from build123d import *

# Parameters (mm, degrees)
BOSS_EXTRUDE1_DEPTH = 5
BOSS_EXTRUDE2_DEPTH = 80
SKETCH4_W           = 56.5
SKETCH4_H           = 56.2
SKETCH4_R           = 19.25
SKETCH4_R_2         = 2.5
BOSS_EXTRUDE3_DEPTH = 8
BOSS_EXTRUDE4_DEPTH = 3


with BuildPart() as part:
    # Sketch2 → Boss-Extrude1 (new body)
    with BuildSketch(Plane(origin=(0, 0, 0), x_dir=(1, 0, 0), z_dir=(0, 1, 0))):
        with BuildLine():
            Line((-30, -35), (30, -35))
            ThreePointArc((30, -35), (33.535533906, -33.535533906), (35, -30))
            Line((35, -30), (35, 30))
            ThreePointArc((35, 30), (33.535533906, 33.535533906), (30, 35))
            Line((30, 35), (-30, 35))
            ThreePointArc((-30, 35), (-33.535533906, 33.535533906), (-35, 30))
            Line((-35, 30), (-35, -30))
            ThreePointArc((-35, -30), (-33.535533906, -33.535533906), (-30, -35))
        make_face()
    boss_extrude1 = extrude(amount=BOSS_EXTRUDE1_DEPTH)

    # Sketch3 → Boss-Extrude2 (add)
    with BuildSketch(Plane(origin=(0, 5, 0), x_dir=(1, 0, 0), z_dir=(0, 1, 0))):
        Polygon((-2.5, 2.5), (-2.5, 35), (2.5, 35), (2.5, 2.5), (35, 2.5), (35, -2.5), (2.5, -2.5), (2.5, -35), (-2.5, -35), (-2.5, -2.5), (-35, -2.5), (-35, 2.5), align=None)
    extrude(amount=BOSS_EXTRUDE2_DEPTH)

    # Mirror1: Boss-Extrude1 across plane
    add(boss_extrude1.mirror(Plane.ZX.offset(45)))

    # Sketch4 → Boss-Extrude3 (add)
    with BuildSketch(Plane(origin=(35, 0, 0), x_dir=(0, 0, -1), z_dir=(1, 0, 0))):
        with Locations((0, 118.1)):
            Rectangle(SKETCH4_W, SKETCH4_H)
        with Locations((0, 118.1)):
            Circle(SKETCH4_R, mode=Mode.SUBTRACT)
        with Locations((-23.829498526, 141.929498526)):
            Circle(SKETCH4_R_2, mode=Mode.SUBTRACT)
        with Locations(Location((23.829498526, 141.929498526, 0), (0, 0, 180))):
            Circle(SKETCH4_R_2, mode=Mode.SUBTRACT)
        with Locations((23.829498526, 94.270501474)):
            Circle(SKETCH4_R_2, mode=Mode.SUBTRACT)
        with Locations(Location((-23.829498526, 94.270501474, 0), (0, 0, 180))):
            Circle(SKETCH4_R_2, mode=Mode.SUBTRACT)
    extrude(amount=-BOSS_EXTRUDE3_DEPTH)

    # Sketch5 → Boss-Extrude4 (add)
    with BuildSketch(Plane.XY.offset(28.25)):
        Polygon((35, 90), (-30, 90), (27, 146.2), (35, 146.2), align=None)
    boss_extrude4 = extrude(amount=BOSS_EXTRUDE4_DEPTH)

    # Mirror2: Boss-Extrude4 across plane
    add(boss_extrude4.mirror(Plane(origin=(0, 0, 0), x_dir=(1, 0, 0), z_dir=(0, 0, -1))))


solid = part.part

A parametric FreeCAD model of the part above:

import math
import FreeCAD as App
import Part
import Sketcher

V = App.Vector

doc = App.newDocument("Part")
body = doc.addObject("PartDesign::Body", "Body")

# Sketch on XZ plane
sketch1 = doc.addObject("Sketcher::SketchObject", "Sketch")
body.addObject(sketch1)
sketch1.AttachmentSupport = (doc.XZ_Plane, [""])
sketch1.MapMode = "FlatFace"
sketch1.addGeometry(Part.LineSegment(V(-30, 35, 0), V(30, 35, 0)), False)
sketch1.addGeometry(Part.ArcOfCircle(Part.Circle(V(30, 30, 0), V(0, 0, 1), 5), math.radians(0), math.radians(90)), False)
sketch1.addGeometry(Part.LineSegment(V(35, 30, 0), V(35, -30, 0)), False)
sketch1.addGeometry(Part.ArcOfCircle(Part.Circle(V(30, -30, 0), V(0, 0, 1), 5), math.radians(-90), math.radians(0)), False)
sketch1.addGeometry(Part.LineSegment(V(30, -35, 0), V(-30, -35, 0)), False)
sketch1.addGeometry(Part.ArcOfCircle(Part.Circle(V(-30, -30, 0), V(0, 0, 1), 5), math.radians(180), math.radians(270)), False)
sketch1.addGeometry(Part.LineSegment(V(-35, -30, 0), V(-35, 30, 0)), False)
sketch1.addGeometry(Part.ArcOfCircle(Part.Circle(V(-30, 30, 0), V(0, 0, 1), 5), math.radians(90), math.radians(180)), False)
sketch1.addConstraint(Sketcher.Constraint("Tangent", 0, 2, 1, 2))
sketch1.addConstraint(Sketcher.Constraint("Tangent", 1, 1, 2, 1))
sketch1.addConstraint(Sketcher.Constraint("Tangent", 2, 2, 3, 2))
sketch1.addConstraint(Sketcher.Constraint("Tangent", 3, 1, 4, 1))
sketch1.addConstraint(Sketcher.Constraint("Tangent", 4, 2, 5, 2))
sketch1.addConstraint(Sketcher.Constraint("Tangent", 5, 1, 6, 1))
sketch1.addConstraint(Sketcher.Constraint("Tangent", 6, 2, 7, 2))
sketch1.addConstraint(Sketcher.Constraint("Tangent", 7, 1, 0, 1))
sketch1.addConstraint(Sketcher.Constraint("Horizontal", 0))
sketch1.addConstraint(Sketcher.Constraint("Vertical", 2))
sketch1.addConstraint(Sketcher.Constraint("Horizontal", 4))
sketch1.addConstraint(Sketcher.Constraint("Vertical", 6))
sketch1.addConstraint(Sketcher.Constraint("Equal", 1, 3))
sketch1.addConstraint(Sketcher.Constraint("Equal", 3, 5))
sketch1.addConstraint(Sketcher.Constraint("Equal", 5, 7))
sketch1.addConstraint(Sketcher.Constraint("Symmetric", 1, 3, 5, 3, -1, 1))
sketch1.addConstraint(Sketcher.Constraint("Equal", 4, 2))
sketch1.addConstraint(Sketcher.Constraint("Radius", 1, 5.0))
sketch1.addConstraint(Sketcher.Constraint("DistanceX", 0, 1, 0, 2, 60.0))
pad1 = doc.addObject("PartDesign::Pad", "Pad")
body.addObject(pad1)
pad1.Profile = sketch1
pad1.Length = 5
pad1.Reversed = True

# Sketch on XZ plane
sketch2 = doc.addObject("Sketcher::SketchObject", "Sketch001")
body.addObject(sketch2)
sketch2.AttachmentSupport = (doc.XZ_Plane, [""])
sketch2.MapMode = "FlatFace"
sketch2.AttachmentOffset = App.Placement(V(0, 0, -5), App.Rotation())
sketch2.addGeometry(Part.LineSegment(V(-2, -35, 0), V(-2, -2, 0)), False)
sketch2.addGeometry(Part.LineSegment(V(-2, -2, 0), V(-35, -2, 0)), False)
sketch2.addGeometry(Part.LineSegment(V(-35, -2, 0), V(-35, 2, 0)), False)
sketch2.addGeometry(Part.LineSegment(V(-35, 2, 0), V(-2, 2, 0)), False)
sketch2.addGeometry(Part.LineSegment(V(-2, 2, 0), V(-2, 35, 0)), False)
sketch2.addGeometry(Part.LineSegment(V(-2, 35, 0), V(2, 35, 0)), False)
sketch2.addGeometry(Part.LineSegment(V(2, 35, 0), V(2, 2, 0)), False)
sketch2.addGeometry(Part.LineSegment(V(2, 2, 0), V(35, 2, 0)), False)
sketch2.addGeometry(Part.LineSegment(V(35, 2, 0), V(35, -2, 0)), False)
sketch2.addGeometry(Part.LineSegment(V(35, -2, 0), V(2, -2, 0)), False)
sketch2.addGeometry(Part.LineSegment(V(2, -2, 0), V(2, -35, 0)), False)
sketch2.addGeometry(Part.LineSegment(V(2, -35, 0), V(-2, -35, 0)), False)
sketch2.addConstraint(Sketcher.Constraint("Coincident", 0, 2, 1, 1))
sketch2.addConstraint(Sketcher.Constraint("Coincident", 1, 2, 2, 1))
sketch2.addConstraint(Sketcher.Constraint("Coincident", 2, 2, 3, 1))
sketch2.addConstraint(Sketcher.Constraint("Coincident", 3, 2, 4, 1))
sketch2.addConstraint(Sketcher.Constraint("Coincident", 4, 2, 5, 1))
sketch2.addConstraint(Sketcher.Constraint("Coincident", 5, 2, 6, 1))
sketch2.addConstraint(Sketcher.Constraint("Coincident", 6, 2, 7, 1))
sketch2.addConstraint(Sketcher.Constraint("Coincident", 7, 2, 8, 1))
sketch2.addConstraint(Sketcher.Constraint("Coincident", 8, 2, 9, 1))
sketch2.addConstraint(Sketcher.Constraint("Coincident", 9, 2, 10, 1))
sketch2.addConstraint(Sketcher.Constraint("Coincident", 10, 2, 11, 1))
sketch2.addConstraint(Sketcher.Constraint("Coincident", 11, 2, 0, 1))
sketch2.addConstraint(Sketcher.Constraint("Vertical", 0))
sketch2.addConstraint(Sketcher.Constraint("Horizontal", 1))
sketch2.addConstraint(Sketcher.Constraint("Vertical", 2))
sketch2.addConstraint(Sketcher.Constraint("Horizontal", 3))
sketch2.addConstraint(Sketcher.Constraint("Vertical", 4))
sketch2.addConstraint(Sketcher.Constraint("Horizontal", 5))
sketch2.addConstraint(Sketcher.Constraint("Vertical", 6))
sketch2.addConstraint(Sketcher.Constraint("Horizontal", 7))
sketch2.addConstraint(Sketcher.Constraint("Vertical", 8))
sketch2.addConstraint(Sketcher.Constraint("Horizontal", 9))
sketch2.addConstraint(Sketcher.Constraint("Vertical", 10))
sketch2.addConstraint(Sketcher.Constraint("Horizontal", 11))
sketch2.addConstraint(Sketcher.Constraint("Symmetric", 0, 2, 6, 2, -1, 1))
sketch2.addConstraint(Sketcher.Constraint("Symmetric", 2, 2, 8, 2, -1, 1))
sketch2.addConstraint(Sketcher.Constraint("Symmetric", 4, 2, 10, 2, -1, 1))
sketch2.addConstraint(Sketcher.Constraint("Symmetric", 3, 2, 6, 2, -2))
sketch2.addConstraint(Sketcher.Constraint("Equal", 9, 0))
sketch2.addConstraint(Sketcher.Constraint("Equal", 11, 2))
sketch2.addConstraint(Sketcher.Constraint("DistanceX", 5, 1, 5, 2, 5.0))
sketch2.addConstraint(Sketcher.Constraint("DistanceX", 1, 2, 1, 1, 32.5))
pad2 = doc.addObject("PartDesign::Pad", "Pad001")
body.addObject(pad2)
pad2.Profile = sketch2
pad2.Length = 80
pad2.Reversed = True
doc.recompute()

datumplane = doc.addObject("PartDesign::Plane", "DatumPlane")
body.addObject(datumplane)
datumplane.AttachmentSupport = (doc.XZ_Plane, [""])
datumplane.MapMode = "FlatFace"
datumplane.AttachmentOffset = App.Placement(V(0, 0, -45), App.Rotation())
mirrored = doc.addObject("PartDesign::Mirrored", "Mirrored")
body.addObject(mirrored)
mirrored.Originals = [pad1]
mirrored.MirrorPlane = (datumplane, [""])
body.Tip = mirrored

# Sketch on YZ plane
sketch3 = doc.addObject("Sketcher::SketchObject", "Sketch002")
body.addObject(sketch3)
sketch3.AttachmentSupport = (doc.YZ_Plane, [""])
sketch3.MapMode = "FlatFace"
sketch3.AttachmentOffset = App.Placement(V(0, 0, 35), App.Rotation())
sketch3.addGeometry(Part.LineSegment(V(146.2, 28.2, 0), V(90, 28.2, 0)), False)
sketch3.addGeometry(Part.LineSegment(V(90, 28.2, 0), V(90, -28.2, 0)), False)
sketch3.addGeometry(Part.LineSegment(V(90, -28.2, 0), V(146.2, -28.2, 0)), False)
sketch3.addGeometry(Part.LineSegment(V(146.2, -28.2, 0), V(146.2, 28.2, 0)), False)
sketch3.addGeometry(Part.Circle(V(94.3, 23.8, 0), V(0, 0, 1), 2.5), False)
sketch3.addGeometry(Part.Circle(V(94.3, -23.8, 0), V(0, 0, 1), 2.5), False)
sketch3.addGeometry(Part.Circle(V(118.1, 0, 0), V(0, 0, 1), 19.2), False)
sketch3.addGeometry(Part.Circle(V(141.9, 23.8, 0), V(0, 0, 1), 2.5), False)
sketch3.addGeometry(Part.Circle(V(141.9, -23.8, 0), V(0, 0, 1), 2.5), False)
sketch3.addConstraint(Sketcher.Constraint("Coincident", 0, 2, 1, 1))
sketch3.addConstraint(Sketcher.Constraint("Coincident", 1, 2, 2, 1))
sketch3.addConstraint(Sketcher.Constraint("Coincident", 2, 2, 3, 1))
sketch3.addConstraint(Sketcher.Constraint("Coincident", 3, 2, 0, 1))
sketch3.addConstraint(Sketcher.Constraint("Horizontal", 0))
sketch3.addConstraint(Sketcher.Constraint("Vertical", 1))
sketch3.addConstraint(Sketcher.Constraint("Horizontal", 2))
sketch3.addConstraint(Sketcher.Constraint("Vertical", 3))
sketch3.addConstraint(Sketcher.Constraint("Equal", 4, 5))
sketch3.addConstraint(Sketcher.Constraint("Equal", 5, 7))
sketch3.addConstraint(Sketcher.Constraint("Equal", 7, 8))
sketch3.addConstraint(Sketcher.Constraint("Symmetric", 4, 3, 5, 3, -1))
sketch3.addConstraint(Sketcher.Constraint("Symmetric", 7, 3, 8, 3, -1))
sketch3.addConstraint(Sketcher.Constraint("PointOnObject", 6, 3, -1))
sketch3.addConstraint(Sketcher.Constraint("Horizontal", 4, 3, 7, 3))
sketch3.addConstraint(Sketcher.Constraint("Diameter", 4, 5.0))
sketch3.addConstraint(Sketcher.Constraint("Diameter", 6, 38.5))
sketch3.addConstraint(Sketcher.Constraint("DistanceX", 0, 2, 0, 1, 56.2))
sketch3.addConstraint(Sketcher.Constraint("DistanceY", 1, 2, 1, 1, 56.5))
sketch3.addConstraint(Sketcher.Constraint("DistanceX", -1, 1, 0, 2, 90.0))
sketch3.addConstraint(Sketcher.Constraint("DistanceX", -1, 1, 6, 3, 118.1))
sketch3.addConstraint(Sketcher.Constraint("DistanceY", -1, 1, 0, 2, 28.25))
sketch3.addConstraint(Sketcher.Constraint("DistanceX", -1, 1, 4, 3, 94.270501))
sketch3.addConstraint(Sketcher.Constraint("DistanceY", -1, 1, 4, 3, 23.829499))
sketch3.addConstraint(Sketcher.Constraint("DistanceX", -1, 1, 7, 3, 141.929499))
pad3 = doc.addObject("PartDesign::Pad", "Pad002")
body.addObject(pad3)
pad3.Profile = sketch3
pad3.Length = 8
pad3.Reversed = True

# Sketch on XY plane
sketch4 = doc.addObject("Sketcher::SketchObject", "Sketch003")
body.addObject(sketch4)
sketch4.AttachmentSupport = (doc.XY_Plane, [""])
sketch4.MapMode = "FlatFace"
sketch4.AttachmentOffset = App.Placement(V(0, 0, 28.25), App.Rotation())
sketch4.addGeometry(Part.LineSegment(V(-30, 90, 0), V(35, 90, 0)), False)
sketch4.addGeometry(Part.LineSegment(V(35, 90, 0), V(35, 146, 0)), False)
sketch4.addGeometry(Part.LineSegment(V(35, 146, 0), V(27, 146, 0)), False)
sketch4.addGeometry(Part.LineSegment(V(27, 146, 0), V(-30, 90, 0)), False)
sketch4.addConstraint(Sketcher.Constraint("Coincident", 0, 2, 1, 1))
sketch4.addConstraint(Sketcher.Constraint("Coincident", 1, 2, 2, 1))
sketch4.addConstraint(Sketcher.Constraint("Coincident", 2, 2, 3, 1))
sketch4.addConstraint(Sketcher.Constraint("Coincident", 3, 2, 0, 1))
sketch4.addConstraint(Sketcher.Constraint("Horizontal", 0))
sketch4.addConstraint(Sketcher.Constraint("Vertical", 1))
sketch4.addConstraint(Sketcher.Constraint("Horizontal", 2))
sketch4.addConstraint(Sketcher.Constraint("DistanceX", 0, 1, 0, 2, 65.0))
sketch4.addConstraint(Sketcher.Constraint("DistanceX", 2, 2, 2, 1, 8.0))
sketch4.addConstraint(Sketcher.Constraint("DistanceY", 1, 1, 1, 2, 56.2))
sketch4.addConstraint(Sketcher.Constraint("DistanceX", -1, 1, 0, 2, 35.0))
sketch4.addConstraint(Sketcher.Constraint("DistanceY", -1, 1, 0, 2, 90.0))
pad4 = doc.addObject("PartDesign::Pad", "Pad003")
body.addObject(pad4)
pad4.Profile = sketch4
pad4.Length = 3
doc.recompute()

mirrored2 = doc.addObject("PartDesign::Mirrored", "Mirrored001")
body.addObject(mirrored2)
mirrored2.Originals = [pad4]
mirrored2.MirrorPlane = (doc.XY_Plane, [""])
body.Tip = mirrored2

doc.recompute()
